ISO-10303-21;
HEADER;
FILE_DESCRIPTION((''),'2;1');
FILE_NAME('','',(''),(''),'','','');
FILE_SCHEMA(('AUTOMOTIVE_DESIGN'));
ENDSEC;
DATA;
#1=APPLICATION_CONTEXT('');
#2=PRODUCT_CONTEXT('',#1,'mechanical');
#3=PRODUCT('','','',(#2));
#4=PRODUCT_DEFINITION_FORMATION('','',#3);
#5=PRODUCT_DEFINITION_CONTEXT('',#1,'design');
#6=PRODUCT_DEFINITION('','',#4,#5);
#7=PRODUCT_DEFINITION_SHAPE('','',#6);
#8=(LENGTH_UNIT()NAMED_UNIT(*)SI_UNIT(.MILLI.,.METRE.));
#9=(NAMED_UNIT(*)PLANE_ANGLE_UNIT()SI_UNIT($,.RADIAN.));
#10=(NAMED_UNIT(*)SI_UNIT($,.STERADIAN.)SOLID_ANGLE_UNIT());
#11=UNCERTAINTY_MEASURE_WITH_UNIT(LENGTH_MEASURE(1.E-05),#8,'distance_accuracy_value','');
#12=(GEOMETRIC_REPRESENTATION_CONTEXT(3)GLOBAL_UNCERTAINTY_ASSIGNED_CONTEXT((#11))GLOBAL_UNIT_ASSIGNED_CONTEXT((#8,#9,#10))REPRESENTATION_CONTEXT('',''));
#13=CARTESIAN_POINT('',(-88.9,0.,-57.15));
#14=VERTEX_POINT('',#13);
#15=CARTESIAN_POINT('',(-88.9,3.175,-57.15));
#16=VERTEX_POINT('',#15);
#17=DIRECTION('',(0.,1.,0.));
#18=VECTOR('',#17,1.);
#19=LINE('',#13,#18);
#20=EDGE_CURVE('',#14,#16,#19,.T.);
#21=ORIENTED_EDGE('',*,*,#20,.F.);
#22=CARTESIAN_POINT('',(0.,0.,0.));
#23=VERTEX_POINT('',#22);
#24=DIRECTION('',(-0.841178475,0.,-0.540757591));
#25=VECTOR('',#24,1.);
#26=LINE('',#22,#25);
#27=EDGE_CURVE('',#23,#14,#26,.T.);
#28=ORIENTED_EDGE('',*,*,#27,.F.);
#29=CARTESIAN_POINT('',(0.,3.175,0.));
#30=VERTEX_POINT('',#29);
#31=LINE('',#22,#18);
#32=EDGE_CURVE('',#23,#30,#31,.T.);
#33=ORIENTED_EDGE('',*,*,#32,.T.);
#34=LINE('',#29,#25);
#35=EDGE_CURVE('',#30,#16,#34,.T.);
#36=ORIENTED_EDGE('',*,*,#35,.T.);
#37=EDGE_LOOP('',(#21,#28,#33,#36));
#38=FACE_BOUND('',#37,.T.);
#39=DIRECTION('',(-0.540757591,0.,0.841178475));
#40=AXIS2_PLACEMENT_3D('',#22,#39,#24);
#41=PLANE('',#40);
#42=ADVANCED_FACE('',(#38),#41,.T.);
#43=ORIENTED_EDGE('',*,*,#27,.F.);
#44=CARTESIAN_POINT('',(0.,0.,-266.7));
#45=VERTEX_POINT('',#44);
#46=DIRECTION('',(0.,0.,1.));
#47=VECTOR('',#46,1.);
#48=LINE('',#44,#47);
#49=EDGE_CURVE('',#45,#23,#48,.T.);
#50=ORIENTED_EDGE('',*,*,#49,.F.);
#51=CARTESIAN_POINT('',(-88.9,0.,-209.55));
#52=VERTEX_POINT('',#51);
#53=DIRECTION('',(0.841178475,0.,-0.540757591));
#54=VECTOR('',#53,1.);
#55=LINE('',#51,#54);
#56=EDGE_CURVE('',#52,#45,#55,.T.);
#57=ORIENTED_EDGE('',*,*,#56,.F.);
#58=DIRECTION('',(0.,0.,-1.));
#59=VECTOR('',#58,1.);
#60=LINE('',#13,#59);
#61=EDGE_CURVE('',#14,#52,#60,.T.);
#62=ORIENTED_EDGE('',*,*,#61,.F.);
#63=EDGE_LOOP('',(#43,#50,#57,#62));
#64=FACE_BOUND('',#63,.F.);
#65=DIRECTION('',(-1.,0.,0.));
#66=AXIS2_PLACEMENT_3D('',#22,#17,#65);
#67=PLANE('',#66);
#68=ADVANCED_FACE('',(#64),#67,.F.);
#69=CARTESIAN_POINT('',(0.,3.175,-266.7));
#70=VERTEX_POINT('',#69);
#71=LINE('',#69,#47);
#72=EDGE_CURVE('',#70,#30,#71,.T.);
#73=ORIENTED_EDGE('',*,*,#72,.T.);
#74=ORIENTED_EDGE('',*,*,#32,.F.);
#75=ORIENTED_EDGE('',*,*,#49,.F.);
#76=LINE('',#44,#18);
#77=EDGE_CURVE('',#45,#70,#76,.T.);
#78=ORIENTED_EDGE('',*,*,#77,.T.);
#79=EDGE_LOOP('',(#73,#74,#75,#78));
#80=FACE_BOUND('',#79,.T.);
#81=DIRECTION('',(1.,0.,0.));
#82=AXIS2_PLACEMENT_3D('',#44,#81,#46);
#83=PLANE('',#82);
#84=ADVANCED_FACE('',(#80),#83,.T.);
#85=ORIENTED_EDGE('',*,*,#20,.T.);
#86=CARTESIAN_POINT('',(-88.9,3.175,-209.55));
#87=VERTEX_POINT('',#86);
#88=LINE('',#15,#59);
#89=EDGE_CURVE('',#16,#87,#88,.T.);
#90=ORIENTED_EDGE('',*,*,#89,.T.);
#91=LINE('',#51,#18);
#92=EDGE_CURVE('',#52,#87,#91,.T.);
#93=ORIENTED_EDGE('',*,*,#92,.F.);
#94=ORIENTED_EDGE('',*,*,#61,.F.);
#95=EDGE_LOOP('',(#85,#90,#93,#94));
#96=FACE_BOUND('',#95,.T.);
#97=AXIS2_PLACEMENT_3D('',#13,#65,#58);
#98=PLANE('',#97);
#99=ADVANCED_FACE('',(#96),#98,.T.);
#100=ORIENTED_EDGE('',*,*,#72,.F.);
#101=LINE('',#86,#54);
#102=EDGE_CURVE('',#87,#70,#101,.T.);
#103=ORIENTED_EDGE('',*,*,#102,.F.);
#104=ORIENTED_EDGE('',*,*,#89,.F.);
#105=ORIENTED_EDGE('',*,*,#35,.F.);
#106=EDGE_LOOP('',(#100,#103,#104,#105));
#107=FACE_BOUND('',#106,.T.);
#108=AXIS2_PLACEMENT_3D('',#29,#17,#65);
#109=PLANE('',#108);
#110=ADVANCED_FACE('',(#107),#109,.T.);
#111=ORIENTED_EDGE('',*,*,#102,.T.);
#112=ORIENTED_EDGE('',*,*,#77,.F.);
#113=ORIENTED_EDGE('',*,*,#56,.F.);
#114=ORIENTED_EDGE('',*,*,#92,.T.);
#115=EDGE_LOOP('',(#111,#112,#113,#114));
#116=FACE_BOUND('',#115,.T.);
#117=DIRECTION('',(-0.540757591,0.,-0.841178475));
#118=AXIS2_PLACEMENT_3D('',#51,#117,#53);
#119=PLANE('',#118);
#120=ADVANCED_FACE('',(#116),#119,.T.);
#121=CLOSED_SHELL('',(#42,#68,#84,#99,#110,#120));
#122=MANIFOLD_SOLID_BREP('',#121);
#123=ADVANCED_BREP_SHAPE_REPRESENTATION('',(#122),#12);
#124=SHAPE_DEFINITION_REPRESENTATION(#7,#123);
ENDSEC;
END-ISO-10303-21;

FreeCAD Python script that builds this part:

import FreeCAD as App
import Part
import Sketcher
from FreeCAD import Vector
Q = App.Units.Quantity


def add_polygon(sketch, points):
    """Adds a closed chain of lines whose ends are joined by coincident constraints."""
    first, n = sketch.GeometryCount, len(points)
    for a, b in zip(points, points[1:] + points[:1]):
        sketch.addGeometry(Part.LineSegment(App.Vector(*a, 0), App.Vector(*b, 0)), False)
    for i in range(n):
        sketch.addConstraint(Sketcher.Constraint("Coincident", first + i, 2, first + (i + 1) % n, 1))

doc = App.newDocument("Part")
body = doc.addObject("PartDesign::Body", "Body")

sketch1 = body.newObject("Sketcher::SketchObject", "Sketch")
sketch1.AttachmentSupport = (doc.getObject("XZ_Plane"), [""])
sketch1.MapMode = "FlatFace"
add_polygon(sketch1, [(-88.9, -209.55), (-88.9, -57.15), (0, 0), (0, -266.7)])
sketch1.addConstraint([
    Sketcher.Constraint("Vertical", 0),
    Sketcher.Constraint("Vertical", 2),
    Sketcher.Constraint("Coincident", 1, 2, -1, 1),
    Sketcher.Constraint("Equal", 1, 3),
    Sketcher.Constraint("DistanceY", 0, 1, 0, 2, Q("6 in")),
    Sketcher.Constraint("DistanceY", 2, 2, 2, 1, Q("10.5 in")),
    Sketcher.Constraint("DistanceX", 0, 2, -1, 1, Q("3.5 in")),
])
pad1 = body.newObject("PartDesign::Pad", "Pad")
pad1.Profile = sketch1
pad1.Length = Q("0.125 in")
pad1.Reversed = True

doc.recompute()
